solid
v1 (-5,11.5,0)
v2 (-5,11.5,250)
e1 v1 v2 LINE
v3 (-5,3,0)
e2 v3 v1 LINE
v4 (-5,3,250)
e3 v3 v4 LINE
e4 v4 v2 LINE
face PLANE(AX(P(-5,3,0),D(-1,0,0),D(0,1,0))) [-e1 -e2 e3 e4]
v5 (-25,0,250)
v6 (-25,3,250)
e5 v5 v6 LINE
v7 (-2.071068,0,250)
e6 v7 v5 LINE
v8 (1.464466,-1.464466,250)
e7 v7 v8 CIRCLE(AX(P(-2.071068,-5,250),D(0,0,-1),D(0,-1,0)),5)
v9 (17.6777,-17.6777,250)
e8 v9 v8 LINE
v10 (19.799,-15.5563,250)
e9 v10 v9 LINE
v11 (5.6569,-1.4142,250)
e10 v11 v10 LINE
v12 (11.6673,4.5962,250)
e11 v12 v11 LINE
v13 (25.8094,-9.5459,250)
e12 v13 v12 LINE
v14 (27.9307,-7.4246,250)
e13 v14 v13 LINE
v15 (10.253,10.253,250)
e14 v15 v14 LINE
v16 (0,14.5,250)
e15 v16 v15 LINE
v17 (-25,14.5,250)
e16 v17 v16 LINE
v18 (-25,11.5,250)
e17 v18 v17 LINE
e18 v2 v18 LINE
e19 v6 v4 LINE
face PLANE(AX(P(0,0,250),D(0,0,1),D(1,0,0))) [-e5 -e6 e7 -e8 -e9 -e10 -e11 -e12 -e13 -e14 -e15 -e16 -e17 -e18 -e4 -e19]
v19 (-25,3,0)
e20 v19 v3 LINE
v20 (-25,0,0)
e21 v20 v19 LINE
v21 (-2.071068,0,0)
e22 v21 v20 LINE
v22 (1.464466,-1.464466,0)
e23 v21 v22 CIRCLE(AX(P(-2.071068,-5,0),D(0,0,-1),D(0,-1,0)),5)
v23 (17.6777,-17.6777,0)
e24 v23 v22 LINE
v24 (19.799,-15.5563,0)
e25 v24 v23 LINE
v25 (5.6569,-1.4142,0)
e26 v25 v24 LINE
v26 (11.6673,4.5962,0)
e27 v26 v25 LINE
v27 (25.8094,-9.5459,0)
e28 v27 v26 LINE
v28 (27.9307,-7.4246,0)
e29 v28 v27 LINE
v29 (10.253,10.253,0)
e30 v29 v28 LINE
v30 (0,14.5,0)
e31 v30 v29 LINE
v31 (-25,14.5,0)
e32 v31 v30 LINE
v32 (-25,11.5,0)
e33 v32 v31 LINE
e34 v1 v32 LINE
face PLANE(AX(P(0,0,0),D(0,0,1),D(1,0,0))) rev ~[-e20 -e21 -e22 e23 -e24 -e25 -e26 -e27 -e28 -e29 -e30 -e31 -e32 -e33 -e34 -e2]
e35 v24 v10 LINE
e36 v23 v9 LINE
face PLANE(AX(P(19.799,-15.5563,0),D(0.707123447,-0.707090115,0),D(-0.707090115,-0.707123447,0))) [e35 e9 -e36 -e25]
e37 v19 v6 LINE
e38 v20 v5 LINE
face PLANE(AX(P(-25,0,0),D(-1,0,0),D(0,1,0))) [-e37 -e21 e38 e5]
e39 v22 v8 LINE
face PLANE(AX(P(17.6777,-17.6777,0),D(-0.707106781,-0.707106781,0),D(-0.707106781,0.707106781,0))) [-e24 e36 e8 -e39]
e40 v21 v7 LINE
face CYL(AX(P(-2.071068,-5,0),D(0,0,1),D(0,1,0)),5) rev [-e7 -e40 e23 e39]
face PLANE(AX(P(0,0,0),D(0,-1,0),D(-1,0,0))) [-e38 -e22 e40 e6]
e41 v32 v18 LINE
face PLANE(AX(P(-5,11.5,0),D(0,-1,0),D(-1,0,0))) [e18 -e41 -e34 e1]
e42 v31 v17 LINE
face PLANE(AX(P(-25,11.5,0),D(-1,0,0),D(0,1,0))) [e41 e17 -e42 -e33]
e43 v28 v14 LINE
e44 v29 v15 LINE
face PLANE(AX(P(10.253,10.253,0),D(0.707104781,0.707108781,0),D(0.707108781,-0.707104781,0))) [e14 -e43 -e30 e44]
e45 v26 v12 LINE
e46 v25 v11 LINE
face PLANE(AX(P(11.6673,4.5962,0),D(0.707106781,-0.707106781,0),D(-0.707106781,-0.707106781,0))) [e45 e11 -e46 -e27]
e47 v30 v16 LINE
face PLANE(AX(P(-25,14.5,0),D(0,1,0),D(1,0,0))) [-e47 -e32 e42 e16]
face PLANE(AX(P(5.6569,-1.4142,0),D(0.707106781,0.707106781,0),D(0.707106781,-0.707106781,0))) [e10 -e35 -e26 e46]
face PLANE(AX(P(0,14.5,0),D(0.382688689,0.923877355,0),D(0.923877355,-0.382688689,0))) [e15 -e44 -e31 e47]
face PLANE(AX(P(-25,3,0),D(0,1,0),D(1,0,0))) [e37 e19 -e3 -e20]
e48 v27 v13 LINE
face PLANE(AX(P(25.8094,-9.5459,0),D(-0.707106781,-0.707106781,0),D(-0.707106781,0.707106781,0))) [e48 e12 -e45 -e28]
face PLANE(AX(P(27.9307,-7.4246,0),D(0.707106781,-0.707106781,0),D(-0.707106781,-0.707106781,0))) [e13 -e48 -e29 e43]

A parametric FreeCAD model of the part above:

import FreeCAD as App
import Part
import Sketcher
Q = App.Units.Quantity


def edges_at(feature, points):
    """Names of the edges that pass closest to the given points."""
    edges = feature.Shape.Edges
    near = lambda p: min(range(len(edges)), key=lambda i: edges[i].distToShape(Part.Vertex(*p))[0])
    return sorted({f"Edge{near(p) + 1}" for p in points})

doc = App.newDocument("Part")
body = doc.addObject("PartDesign::Body", "Body")

# Sketch on XY plane
sketch1 = body.newObject("Sketcher::SketchObject", "Sketch")
sketch1.AttachmentSupport = (doc.getObject("XY_Plane"), [""])
sketch1.MapMode = "FlatFace"
sketch1.addGeometry([
    Part.LineSegment(App.Vector(-25, 0, 0), App.Vector(0, 0, 0)),  # 0
    Part.LineSegment(App.Vector(0, 0, 0), App.Vector(17.7, -17.7, 0)),  # 1
    Part.LineSegment(App.Vector(17.7, -17.7, 0), App.Vector(19.8, -15.6, 0)),  # 2
    Part.LineSegment(App.Vector(19.8, -15.6, 0), App.Vector(5.7, -1.4, 0)),  # 3
    Part.LineSegment(App.Vector(5.7, -1.4, 0), App.Vector(11.7, 4.6, 0)),  # 4
    Part.LineSegment(App.Vector(11.7, 4.6, 0), App.Vector(25.8, -9.5, 0)),  # 5
    Part.LineSegment(App.Vector(25.8, -9.5, 0), App.Vector(27.9, -7.4, 0)),  # 6
    Part.LineSegment(App.Vector(27.9, -7.4, 0), App.Vector(10.3, 10.3, 0)),  # 7
    Part.LineSegment(App.Vector(10.3, 10.3, 0), App.Vector(0, 14.5, 0)),  # 8
    Part.LineSegment(App.Vector(0, 14.5, 0), App.Vector(-25, 14.5, 0)),  # 9
    Part.LineSegment(App.Vector(-25, 14.5, 0), App.Vector(-25, 11.5, 0)),  # 10
    Part.LineSegment(App.Vector(-25, 11.5, 0), App.Vector(-5, 11.5, 0)),  # 11
    Part.LineSegment(App.Vector(-5, 11.5, 0), App.Vector(-5, 3, 0)),  # 12
    Part.LineSegment(App.Vector(-5, 3, 0), App.Vector(-25, 3, 0)),  # 13
    Part.LineSegment(App.Vector(-25, 3, 0), App.Vector(-25, 0, 0)),  # 14
], False)
sketch1.addConstraint([
    Sketcher.Constraint("Coincident", 0, 2, 1, 1),
    Sketcher.Constraint("Coincident", 1, 2, 2, 1),
    Sketcher.Constraint("Coincident", 2, 2, 3, 1),
    Sketcher.Constraint("Coincident", 3, 2, 4, 1),
    Sketcher.Constraint("Coincident", 4, 2, 5, 1),
    Sketcher.Constraint("Coincident", 5, 2, 6, 1),
    Sketcher.Constraint("Coincident", 6, 2, 7, 1),
    Sketcher.Constraint("Coincident", 7, 2, 8, 1),
    Sketcher.Constraint("Coincident", 8, 2, 9, 1),
    Sketcher.Constraint("Coincident", 9, 2, 10, 1),
    Sketcher.Constraint("Coincident", 10, 2, 11, 1),
    Sketcher.Constraint("Coincident", 11, 2, 12, 1),
    Sketcher.Constraint("Coincident", 12, 2, 13, 1),
    Sketcher.Constraint("Coincident", 13, 2, 14, 1),
    Sketcher.Constraint("Coincident", 14, 2, 0, 1),
    Sketcher.Constraint("Horizontal", 0),
    Sketcher.Constraint("Horizontal", 9),
    Sketcher.Constraint("Vertical", 10),
    Sketcher.Constraint("Horizontal", 11),
    Sketcher.Constraint("Vertical", 12),
    Sketcher.Constraint("Horizontal", 13),
    Sketcher.Constraint("Vertical", 14),
    Sketcher.Constraint("Coincident", 0, 2, -1, 1),
    Sketcher.Constraint("PointOnObject", 8, 2, -2),
    Sketcher.Constraint("Perpendicular", 1, 2),
    Sketcher.Constraint("Perpendicular", 2, 3),
    Sketcher.Constraint("Perpendicular", 3, 4),
    Sketcher.Constraint("Perpendicular", 4, 5),
    Sketcher.Constraint("Perpendicular", 5, 6),
    Sketcher.Constraint("Perpendicular", 6, 7),
    Sketcher.Constraint("Vertical", 10, 2, 13, 2),
    Sketcher.Constraint("Equal", 10, 14),
    Sketcher.Constraint("Equal", 3, 5),
    Sketcher.Constraint("Equal", 2, 6),
    Sketcher.Constraint("Equal", 1, 7),
    Sketcher.Constraint("DistanceX", 0, 1, 0, 2, 25.0),
    Sketcher.Constraint("DistanceX", 11, 1, 11, 2, 20.0),
    Sketcher.Constraint("DistanceY", 10, 2, 10, 1, 3.0),
    Sketcher.Constraint("Angle", 1, Q("-45 deg")),
    Sketcher.Constraint("Distance", 1, 25.0),
    Sketcher.Constraint("Distance", 2, 3.0),
    Sketcher.Constraint("Distance", 3, 20.0),
    Sketcher.Constraint("DistanceY", 12, 2, 12, 1, 8.5),
    Sketcher.Constraint("Distance", 4, 8.5),
])
pad1 = body.newObject("PartDesign::Pad", "Pad")
pad1.Profile = sketch1
pad1.Length = 250
doc.recompute()

fillet = body.newObject("PartDesign::Fillet", "Fillet")
fillet.Base = (pad1, edges_at(pad1, [(0, 0, 125)]))
fillet.Radius = 5

doc.recompute()
